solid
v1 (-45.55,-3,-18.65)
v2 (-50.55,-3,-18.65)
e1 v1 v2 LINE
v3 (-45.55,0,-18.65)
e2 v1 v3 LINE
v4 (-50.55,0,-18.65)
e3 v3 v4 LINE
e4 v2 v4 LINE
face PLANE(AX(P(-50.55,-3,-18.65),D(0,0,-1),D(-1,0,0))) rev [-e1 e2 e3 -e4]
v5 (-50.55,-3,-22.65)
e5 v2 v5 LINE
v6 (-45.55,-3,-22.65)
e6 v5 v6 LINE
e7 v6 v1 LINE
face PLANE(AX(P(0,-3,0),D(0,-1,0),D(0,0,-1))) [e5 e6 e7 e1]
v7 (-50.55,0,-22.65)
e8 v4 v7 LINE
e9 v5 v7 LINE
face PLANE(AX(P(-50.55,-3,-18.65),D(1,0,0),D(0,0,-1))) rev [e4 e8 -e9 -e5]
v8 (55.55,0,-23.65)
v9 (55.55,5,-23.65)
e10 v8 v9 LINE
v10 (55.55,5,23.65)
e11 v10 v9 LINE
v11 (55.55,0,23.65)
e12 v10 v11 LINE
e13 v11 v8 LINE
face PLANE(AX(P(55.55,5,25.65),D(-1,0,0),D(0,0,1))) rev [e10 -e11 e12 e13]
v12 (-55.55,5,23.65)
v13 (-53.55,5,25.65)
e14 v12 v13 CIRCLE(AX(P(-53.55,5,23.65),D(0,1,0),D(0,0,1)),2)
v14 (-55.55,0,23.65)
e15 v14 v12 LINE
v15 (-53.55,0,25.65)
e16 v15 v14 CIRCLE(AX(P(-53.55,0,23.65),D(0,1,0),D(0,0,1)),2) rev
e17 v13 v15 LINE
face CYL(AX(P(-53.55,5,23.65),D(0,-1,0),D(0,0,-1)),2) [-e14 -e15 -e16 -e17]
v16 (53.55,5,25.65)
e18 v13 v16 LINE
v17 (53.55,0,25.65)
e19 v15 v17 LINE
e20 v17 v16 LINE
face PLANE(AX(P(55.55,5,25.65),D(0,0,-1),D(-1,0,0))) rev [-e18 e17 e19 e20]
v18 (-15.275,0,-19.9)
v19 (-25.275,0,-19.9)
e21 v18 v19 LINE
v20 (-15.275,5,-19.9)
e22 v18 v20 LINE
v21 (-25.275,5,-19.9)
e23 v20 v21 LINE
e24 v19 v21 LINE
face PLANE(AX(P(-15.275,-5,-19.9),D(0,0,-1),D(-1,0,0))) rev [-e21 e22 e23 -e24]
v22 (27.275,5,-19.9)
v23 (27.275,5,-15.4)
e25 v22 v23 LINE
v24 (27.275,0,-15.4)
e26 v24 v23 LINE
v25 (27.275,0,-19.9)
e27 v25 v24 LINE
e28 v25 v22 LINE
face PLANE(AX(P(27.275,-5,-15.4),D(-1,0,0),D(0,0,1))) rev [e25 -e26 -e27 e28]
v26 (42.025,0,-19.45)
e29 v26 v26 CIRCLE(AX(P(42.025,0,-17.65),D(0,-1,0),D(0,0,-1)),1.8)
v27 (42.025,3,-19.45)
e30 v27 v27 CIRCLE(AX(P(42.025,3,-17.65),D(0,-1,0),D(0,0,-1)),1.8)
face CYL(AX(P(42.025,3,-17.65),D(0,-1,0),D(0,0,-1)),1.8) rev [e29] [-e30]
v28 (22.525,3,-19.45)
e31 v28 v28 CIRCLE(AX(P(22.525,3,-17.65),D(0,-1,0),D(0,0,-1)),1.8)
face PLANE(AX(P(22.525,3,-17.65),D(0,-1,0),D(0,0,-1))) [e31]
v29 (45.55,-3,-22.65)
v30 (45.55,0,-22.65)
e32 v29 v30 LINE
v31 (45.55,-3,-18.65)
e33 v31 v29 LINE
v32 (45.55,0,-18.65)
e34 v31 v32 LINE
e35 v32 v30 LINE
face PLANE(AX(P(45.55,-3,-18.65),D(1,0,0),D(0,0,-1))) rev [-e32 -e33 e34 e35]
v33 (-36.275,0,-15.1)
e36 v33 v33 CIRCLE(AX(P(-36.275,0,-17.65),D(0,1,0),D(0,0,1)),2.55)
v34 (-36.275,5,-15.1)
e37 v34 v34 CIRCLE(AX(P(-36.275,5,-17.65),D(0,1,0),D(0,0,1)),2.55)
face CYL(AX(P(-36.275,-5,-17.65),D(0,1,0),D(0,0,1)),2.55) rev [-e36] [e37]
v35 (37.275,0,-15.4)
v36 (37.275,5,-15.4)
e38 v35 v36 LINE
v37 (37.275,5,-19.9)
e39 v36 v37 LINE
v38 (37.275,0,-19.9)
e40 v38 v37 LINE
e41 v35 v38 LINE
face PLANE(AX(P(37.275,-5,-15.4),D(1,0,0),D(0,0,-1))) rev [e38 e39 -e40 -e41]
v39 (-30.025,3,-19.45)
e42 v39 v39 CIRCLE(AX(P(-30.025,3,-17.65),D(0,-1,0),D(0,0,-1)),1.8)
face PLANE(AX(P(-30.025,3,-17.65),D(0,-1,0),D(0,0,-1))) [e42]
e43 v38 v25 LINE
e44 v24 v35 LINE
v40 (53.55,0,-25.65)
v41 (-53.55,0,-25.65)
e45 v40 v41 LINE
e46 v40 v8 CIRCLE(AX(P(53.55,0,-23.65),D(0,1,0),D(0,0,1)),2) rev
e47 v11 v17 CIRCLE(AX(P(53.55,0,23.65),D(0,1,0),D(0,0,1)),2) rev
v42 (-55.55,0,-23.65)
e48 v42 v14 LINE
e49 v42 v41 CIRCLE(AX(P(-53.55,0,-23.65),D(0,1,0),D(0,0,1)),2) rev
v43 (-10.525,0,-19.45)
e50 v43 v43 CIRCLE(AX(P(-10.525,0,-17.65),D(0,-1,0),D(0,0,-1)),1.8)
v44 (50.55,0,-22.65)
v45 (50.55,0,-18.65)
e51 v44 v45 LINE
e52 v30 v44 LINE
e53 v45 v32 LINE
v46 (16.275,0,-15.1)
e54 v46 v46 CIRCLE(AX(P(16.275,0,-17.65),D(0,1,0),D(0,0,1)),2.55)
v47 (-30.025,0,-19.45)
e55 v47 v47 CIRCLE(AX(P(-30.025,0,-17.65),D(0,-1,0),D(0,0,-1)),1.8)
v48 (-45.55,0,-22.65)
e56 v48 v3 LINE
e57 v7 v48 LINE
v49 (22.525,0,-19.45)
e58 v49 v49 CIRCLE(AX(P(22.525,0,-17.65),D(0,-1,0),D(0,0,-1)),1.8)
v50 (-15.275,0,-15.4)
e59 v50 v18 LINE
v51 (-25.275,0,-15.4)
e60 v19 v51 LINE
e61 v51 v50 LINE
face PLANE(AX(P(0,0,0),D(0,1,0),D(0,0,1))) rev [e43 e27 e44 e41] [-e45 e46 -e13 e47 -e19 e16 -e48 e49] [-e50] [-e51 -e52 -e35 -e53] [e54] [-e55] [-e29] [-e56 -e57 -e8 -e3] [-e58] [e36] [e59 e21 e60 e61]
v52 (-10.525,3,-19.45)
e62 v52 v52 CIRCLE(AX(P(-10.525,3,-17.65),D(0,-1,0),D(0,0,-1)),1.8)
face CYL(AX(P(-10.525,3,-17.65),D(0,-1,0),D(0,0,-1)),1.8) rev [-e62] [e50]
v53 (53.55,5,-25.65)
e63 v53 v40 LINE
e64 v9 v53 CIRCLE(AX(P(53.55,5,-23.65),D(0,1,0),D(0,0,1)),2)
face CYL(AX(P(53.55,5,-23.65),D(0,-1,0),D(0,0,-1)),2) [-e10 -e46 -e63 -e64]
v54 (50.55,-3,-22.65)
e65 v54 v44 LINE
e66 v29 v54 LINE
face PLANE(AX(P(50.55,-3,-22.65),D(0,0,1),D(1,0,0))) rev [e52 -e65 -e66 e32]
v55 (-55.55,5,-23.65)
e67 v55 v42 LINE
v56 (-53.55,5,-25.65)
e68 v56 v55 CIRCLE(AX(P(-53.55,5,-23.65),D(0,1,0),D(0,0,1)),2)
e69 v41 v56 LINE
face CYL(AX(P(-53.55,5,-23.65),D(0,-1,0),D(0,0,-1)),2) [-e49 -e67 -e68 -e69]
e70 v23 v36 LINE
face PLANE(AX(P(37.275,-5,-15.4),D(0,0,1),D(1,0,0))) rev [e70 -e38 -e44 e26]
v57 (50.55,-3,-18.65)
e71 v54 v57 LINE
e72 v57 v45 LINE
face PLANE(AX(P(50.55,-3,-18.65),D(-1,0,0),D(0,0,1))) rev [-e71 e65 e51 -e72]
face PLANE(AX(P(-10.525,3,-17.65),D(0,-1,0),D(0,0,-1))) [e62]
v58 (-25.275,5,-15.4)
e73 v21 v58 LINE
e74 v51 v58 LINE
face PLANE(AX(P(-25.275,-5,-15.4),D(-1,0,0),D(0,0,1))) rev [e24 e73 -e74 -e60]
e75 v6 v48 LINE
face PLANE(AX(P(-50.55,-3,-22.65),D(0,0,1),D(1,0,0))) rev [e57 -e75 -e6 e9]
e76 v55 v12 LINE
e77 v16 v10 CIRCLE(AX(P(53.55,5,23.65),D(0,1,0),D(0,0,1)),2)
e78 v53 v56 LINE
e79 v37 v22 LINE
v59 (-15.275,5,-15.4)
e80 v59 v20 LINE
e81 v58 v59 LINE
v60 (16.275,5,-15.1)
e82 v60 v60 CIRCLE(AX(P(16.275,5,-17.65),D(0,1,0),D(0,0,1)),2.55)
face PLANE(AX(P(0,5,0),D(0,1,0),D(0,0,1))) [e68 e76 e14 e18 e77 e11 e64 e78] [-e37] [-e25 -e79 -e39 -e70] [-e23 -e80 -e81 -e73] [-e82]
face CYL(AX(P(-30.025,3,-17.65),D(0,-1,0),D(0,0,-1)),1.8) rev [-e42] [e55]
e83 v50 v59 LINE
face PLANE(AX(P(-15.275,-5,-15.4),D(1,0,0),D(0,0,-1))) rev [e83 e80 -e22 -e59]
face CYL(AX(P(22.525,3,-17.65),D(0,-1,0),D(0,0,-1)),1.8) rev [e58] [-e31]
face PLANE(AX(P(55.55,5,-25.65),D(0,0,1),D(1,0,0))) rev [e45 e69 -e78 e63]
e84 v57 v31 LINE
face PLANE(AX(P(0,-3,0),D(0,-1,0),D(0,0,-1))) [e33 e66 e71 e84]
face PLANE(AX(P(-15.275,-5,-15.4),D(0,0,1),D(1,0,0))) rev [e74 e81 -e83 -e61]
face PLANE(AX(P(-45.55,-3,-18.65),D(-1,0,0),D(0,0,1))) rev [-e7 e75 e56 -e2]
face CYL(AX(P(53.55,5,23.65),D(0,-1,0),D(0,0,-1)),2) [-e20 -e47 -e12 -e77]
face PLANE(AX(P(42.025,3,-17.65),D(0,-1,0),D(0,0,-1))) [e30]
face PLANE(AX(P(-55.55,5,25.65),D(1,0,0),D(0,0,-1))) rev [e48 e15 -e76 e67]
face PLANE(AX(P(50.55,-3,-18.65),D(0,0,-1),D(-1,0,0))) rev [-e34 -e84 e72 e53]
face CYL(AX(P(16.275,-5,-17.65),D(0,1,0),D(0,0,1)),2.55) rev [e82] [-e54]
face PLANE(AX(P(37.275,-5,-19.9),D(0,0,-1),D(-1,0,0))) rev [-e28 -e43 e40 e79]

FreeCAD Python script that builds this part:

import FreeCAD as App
import Part
import Sketcher
Q = App.Units.Quantity


def edges_at(feature, points):
    """Names of the edges that pass closest to the given points."""
    edges = feature.Shape.Edges
    near = lambda p: min(range(len(edges)), key=lambda i: edges[i].distToShape(Part.Vertex(*p))[0])
    return sorted({f"Edge{near(p) + 1}" for p in points})


def add_polygon(sketch, points):
    """Adds a closed chain of lines whose ends are joined by coincident constraints."""
    first, n = sketch.GeometryCount, len(points)
    for a, b in zip(points, points[1:] + points[:1]):
        sketch.addGeometry(Part.LineSegment(App.Vector(*a, 0), App.Vector(*b, 0)), False)
    for i in range(n):
        sketch.addConstraint(Sketcher.Constraint("Coincident", first + i, 2, first + (i + 1) % n, 1))

doc = App.newDocument("Part")
body = doc.addObject("PartDesign::Body", "Body")

# Sketch on XZ plane
sketch1 = doc.addObject("Sketcher::SketchObject", "Sketch")
body.addObject(sketch1)
sketch1.AttachmentSupport = (doc.XZ_Plane, [""])
sketch1.MapMode = "FlatFace"
add_polygon(sketch1, [(-56, -26), (-56, 26), (56, 26), (56, -26)])  # lines 0-3
sketch1.addConstraint([
    Sketcher.Constraint("Vertical", 0),
    Sketcher.Constraint("Horizontal", 1),
    Sketcher.Constraint("Vertical", 2),
    Sketcher.Constraint("Horizontal", 3),
    Sketcher.Constraint("Symmetric", 0, 2, 2, 2, -1, 1),
    Sketcher.Constraint("DistanceX", 1, 1, 1, 2, Q("111.1 mm")),
    Sketcher.Constraint("DistanceY", 0, 1, 0, 2, Q("51.3 mm")),
])
pad1 = doc.addObject("PartDesign::Pad", "Pad")
body.addObject(pad1)
pad1.Profile = sketch1
pad1.Length = 5
pad1.Reversed = True

# Sketch on XZ plane
sketch2 = doc.addObject("Sketcher::SketchObject", "Sketch001")
body.addObject(sketch2)
sketch2.AttachmentSupport = (doc.XZ_Plane, [""])
sketch2.MapMode = "FlatFace"
add_polygon(sketch2, [(-50.5, -18.6), (-50.5, -22.6), (-45.5, -22.6), (-45.5, -18.6)])  # lines 0-3
add_polygon(sketch2, [(45.5, -18.6), (45.5, -22.6), (50.5, -22.6), (50.5, -18.6)])  # lines 4-7
sketch2.addConstraint([
    Sketcher.Constraint("Vertical", 0),
    Sketcher.Constraint("Horizontal", 1),
    Sketcher.Constraint("Vertical", 2),
    Sketcher.Constraint("Horizontal", 3),
    Sketcher.Constraint("Vertical", 4),
    Sketcher.Constraint("Horizontal", 5),
    Sketcher.Constraint("Vertical", 6),
    Sketcher.Constraint("Horizontal", 7),
    Sketcher.Constraint("Symmetric", 1, 2, 4, 2, -2),
    Sketcher.Constraint("Symmetric", 3, 2, 6, 2, -2),
    Sketcher.Constraint("DistanceX", 1, 1, 1, 2, Q("5 mm")),
    Sketcher.Constraint("DistanceY", 0, 2, 0, 1, Q("4 mm")),
    Sketcher.Constraint("DistanceX", 1, 2, 4, 2, Q("91.1 mm")),
    Sketcher.Constraint("DistanceY", 0, 2, -1, 1, Q("22.65 mm")),
])
pad2 = doc.addObject("PartDesign::Pad", "Pad001")
body.addObject(pad2)
pad2.Profile = sketch2
pad2.Length = 3

# Sketch on XZ plane
sketch3 = doc.addObject("Sketcher::SketchObject", "Sketch002")
body.addObject(sketch3)
sketch3.AttachmentSupport = (doc.XZ_Plane, [""])
sketch3.MapMode = "FlatFace"
sketch3.AttachmentOffset = App.Placement(App.Vector(0, 0, -5), App.Rotation())
sketch3.addGeometry(Part.Circle(App.Vector(-36.3, -17.6, 0), App.Vector(0, 0, 1), 2.5), False)  # 0
sketch3.addGeometry(Part.Circle(App.Vector(16.3, -17.6, 0), App.Vector(0, 0, 1), 2.5), False)  # 1
add_polygon(sketch3, [(-25.3, -19.9), (-25.3, -15.4), (-15.3, -15.4), (-15.3, -19.9)])  # lines 2-5
add_polygon(sketch3, [(27.3, -19.9), (27.3, -15.4), (37.3, -15.4), (37.3, -19.9)])  # lines 6-9
sketch3.addConstraint([
    Sketcher.Constraint("Vertical", 2),
    Sketcher.Constraint("Horizontal", 3),
    Sketcher.Constraint("Vertical", 4),
    Sketcher.Constraint("Horizontal", 5),
    Sketcher.Constraint("Vertical", 6),
    Sketcher.Constraint("Horizontal", 7),
    Sketcher.Constraint("Vertical", 8),
    Sketcher.Constraint("Horizontal", 9),
    Sketcher.Constraint("Equal", 0, 1),
    Sketcher.Constraint("Horizontal", 0, 3, 1, 3),
    Sketcher.Constraint("Horizontal", 3, 2, 6, 2),
    Sketcher.Constraint("Horizontal", 5, 2, 8, 2),
    Sketcher.Constraint("Equal", 5, 7),
    Sketcher.Constraint("Diameter", 0, Q("5.1 mm")),
    Sketcher.Constraint("DistanceX", 3, 1, 3, 2, Q("10 mm")),
    Sketcher.Constraint("DistanceY", 2, 1, 2, 2, Q("4.5 mm")),
    Sketcher.Constraint("DistanceX", 0, 3, 2, 2, Q("11 mm")),
    Sketcher.Constraint("DistanceX", 1, 3, 6, 2, Q("11 mm")),
    Sketcher.Constraint("DistanceY", 2, 2, -1, 1, Q("15.4 mm")),
    Sketcher.Constraint("DistanceY", 0, 3, -1, 1, Q("17.65 mm")),
    Sketcher.Constraint("DistanceX", 0, 3, 1, 3, Q("52.55 mm")),
    Sketcher.Constraint("DistanceX", 0, 3, -1, 1, Q("36.275 mm")),
])
pocket1 = doc.addObject("PartDesign::Pocket", "Pocket")
body.addObject(pocket1)
pocket1.Profile = sketch3
pocket1.Length = 10
pocket1.Reversed = True

# Sketch on XZ plane
sketch4 = doc.addObject("Sketcher::SketchObject", "Sketch003")
body.addObject(sketch4)
sketch4.AttachmentSupport = (doc.XZ_Plane, [""])
sketch4.MapMode = "FlatFace"
sketch4.addGeometry([
    Part.Circle(App.Vector(-30, -17.6, 0), App.Vector(0, 0, 1), 1.8),
    Part.Circle(App.Vector(-10.5, -17.6, 0), App.Vector(0, 0, 1), 1.8),
    Part.Circle(App.Vector(22.5, -17.6, 0), App.Vector(0, 0, 1), 1.8),
    Part.Circle(App.Vector(42, -17.6, 0), App.Vector(0, 0, 1), 1.8),
], False)
sketch4.addConstraint([
    Sketcher.Constraint("Equal", 0, 1),
    Sketcher.Constraint("Equal", 1, 2),
    Sketcher.Constraint("Equal", 2, 3),
    Sketcher.Constraint("Horizontal", 0, 3, 1, 3),
    Sketcher.Constraint("Horizontal", 1, 3, 2, 3),
    Sketcher.Constraint("Horizontal", 2, 3, 3, 3),
    Sketcher.Constraint("Diameter", 0, Q("3.6 mm")),
    Sketcher.Constraint("DistanceX", 0, 3, 1, 3, Q("19.5 mm")),
    Sketcher.Constraint("DistanceX", 2, 3, 3, 3, Q("19.5 mm")),
    Sketcher.Constraint("DistanceY", 0, 3, -1, 1, Q("17.65 mm")),
    Sketcher.Constraint("DistanceX", 1, 3, 2, 3, Q("33.05 mm")),
    Sketcher.Constraint("DistanceX", 0, 3, -1, 1, Q("30.025 mm")),
])
pocket2 = doc.addObject("PartDesign::Pocket", "Pocket001")
body.addObject(pocket2)
pocket2.Profile = sketch4
pocket2.Length = 3
doc.recompute()

fillet = doc.addObject("PartDesign::Fillet", "Fillet")
body.addObject(fillet)
fillet.Base = (pocket2, edges_at(pocket2, [
    (-55.55, 2.5, -25.65),
    (55.55, 2.5, -25.65),
    (55.55, 2.5, 25.65),
    (-55.55, 2.5, 25.65),
]))
fillet.Radius = 2

doc.recompute()
